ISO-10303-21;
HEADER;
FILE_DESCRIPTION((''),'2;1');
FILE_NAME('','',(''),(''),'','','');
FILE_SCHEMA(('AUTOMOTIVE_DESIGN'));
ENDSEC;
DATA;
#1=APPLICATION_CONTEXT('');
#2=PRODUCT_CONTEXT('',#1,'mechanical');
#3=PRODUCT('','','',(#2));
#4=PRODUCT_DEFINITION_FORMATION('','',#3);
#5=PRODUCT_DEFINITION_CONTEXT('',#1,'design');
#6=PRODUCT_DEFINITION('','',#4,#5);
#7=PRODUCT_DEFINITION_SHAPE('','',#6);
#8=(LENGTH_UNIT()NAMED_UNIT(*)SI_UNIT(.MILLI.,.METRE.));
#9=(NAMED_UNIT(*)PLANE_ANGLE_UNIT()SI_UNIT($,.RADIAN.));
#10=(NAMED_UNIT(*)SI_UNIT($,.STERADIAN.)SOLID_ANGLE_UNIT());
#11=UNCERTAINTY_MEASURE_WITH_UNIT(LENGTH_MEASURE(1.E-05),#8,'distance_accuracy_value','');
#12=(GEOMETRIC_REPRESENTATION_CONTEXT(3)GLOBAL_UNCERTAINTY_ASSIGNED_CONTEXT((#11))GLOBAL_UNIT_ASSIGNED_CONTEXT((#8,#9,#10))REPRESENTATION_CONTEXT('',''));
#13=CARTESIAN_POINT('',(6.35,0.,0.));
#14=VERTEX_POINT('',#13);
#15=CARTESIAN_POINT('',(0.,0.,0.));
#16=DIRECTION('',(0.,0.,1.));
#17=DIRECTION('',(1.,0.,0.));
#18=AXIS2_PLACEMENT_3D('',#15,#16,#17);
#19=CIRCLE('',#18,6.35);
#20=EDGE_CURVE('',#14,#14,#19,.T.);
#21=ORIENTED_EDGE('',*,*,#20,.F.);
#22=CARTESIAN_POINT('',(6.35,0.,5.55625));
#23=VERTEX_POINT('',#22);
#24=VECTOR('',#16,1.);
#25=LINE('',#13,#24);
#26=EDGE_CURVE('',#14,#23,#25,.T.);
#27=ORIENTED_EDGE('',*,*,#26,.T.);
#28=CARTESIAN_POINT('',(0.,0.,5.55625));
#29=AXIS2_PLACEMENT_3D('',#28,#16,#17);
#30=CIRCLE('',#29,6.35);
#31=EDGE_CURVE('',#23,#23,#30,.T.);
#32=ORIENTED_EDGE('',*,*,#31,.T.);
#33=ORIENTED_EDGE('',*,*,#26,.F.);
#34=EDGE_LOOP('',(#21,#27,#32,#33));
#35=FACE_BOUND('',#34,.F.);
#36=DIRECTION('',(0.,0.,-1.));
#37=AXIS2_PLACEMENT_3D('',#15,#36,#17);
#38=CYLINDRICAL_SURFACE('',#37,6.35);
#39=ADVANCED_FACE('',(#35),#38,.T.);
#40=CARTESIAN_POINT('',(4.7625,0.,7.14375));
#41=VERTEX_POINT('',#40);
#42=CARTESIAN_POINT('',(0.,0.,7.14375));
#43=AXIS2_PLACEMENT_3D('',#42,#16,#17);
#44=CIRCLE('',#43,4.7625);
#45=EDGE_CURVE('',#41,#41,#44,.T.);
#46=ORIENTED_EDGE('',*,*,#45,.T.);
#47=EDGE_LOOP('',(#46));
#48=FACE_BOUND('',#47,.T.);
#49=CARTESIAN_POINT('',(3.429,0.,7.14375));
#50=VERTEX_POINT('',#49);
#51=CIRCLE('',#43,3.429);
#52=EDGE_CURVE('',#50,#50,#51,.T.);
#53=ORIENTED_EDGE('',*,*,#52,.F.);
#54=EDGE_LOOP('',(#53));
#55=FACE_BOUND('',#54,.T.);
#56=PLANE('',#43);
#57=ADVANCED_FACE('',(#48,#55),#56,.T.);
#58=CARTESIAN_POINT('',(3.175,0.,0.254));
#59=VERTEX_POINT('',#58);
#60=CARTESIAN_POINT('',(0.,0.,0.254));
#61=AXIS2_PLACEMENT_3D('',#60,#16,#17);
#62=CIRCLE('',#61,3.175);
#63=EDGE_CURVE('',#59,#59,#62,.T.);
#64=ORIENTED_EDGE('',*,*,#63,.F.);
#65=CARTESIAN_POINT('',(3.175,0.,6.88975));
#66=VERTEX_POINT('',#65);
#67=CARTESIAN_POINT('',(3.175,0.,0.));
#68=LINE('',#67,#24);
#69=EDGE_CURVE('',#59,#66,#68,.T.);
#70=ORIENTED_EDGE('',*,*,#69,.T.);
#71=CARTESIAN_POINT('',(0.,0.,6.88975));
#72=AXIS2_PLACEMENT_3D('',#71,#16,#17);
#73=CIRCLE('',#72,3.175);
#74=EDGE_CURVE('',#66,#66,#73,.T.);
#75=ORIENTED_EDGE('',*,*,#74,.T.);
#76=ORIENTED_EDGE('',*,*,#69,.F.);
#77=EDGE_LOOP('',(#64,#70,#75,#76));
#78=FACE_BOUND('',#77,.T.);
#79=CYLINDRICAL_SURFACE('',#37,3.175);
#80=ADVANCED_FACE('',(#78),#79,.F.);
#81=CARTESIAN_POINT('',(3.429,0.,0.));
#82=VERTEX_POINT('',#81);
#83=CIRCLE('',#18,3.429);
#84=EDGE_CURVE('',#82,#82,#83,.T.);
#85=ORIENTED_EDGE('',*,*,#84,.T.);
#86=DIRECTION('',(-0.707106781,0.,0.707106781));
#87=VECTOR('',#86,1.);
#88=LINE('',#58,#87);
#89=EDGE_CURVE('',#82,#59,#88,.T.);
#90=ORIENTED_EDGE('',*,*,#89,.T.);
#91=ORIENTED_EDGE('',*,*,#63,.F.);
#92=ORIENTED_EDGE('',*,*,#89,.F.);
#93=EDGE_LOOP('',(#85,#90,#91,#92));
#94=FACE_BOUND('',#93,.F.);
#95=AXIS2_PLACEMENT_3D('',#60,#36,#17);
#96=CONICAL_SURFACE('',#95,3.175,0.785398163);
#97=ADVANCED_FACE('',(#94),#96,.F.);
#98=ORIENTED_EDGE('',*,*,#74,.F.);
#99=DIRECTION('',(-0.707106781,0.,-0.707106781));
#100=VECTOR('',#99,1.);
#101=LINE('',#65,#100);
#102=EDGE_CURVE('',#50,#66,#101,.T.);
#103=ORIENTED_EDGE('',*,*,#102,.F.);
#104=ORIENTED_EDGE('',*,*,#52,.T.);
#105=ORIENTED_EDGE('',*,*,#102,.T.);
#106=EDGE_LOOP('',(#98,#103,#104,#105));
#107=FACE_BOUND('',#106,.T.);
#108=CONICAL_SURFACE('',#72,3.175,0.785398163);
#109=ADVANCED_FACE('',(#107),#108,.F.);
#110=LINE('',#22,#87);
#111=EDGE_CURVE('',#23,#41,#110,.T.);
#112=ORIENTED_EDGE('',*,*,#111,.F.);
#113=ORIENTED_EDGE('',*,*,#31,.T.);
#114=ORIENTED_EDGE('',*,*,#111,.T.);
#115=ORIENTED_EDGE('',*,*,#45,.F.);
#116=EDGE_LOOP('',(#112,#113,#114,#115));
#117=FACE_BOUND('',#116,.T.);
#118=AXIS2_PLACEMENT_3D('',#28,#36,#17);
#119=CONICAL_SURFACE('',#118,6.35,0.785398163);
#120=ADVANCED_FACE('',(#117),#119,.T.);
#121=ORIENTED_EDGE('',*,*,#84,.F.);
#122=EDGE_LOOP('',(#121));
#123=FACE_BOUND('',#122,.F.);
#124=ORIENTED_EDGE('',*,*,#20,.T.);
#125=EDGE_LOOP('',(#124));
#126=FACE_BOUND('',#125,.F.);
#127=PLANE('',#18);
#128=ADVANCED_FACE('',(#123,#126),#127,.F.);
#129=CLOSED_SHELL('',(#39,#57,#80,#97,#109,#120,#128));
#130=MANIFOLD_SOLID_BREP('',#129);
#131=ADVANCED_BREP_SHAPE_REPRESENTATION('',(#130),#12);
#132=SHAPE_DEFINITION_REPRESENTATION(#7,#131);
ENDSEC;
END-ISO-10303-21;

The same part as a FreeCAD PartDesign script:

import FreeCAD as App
import Part
import Sketcher
Q = App.Units.Quantity


def edges_at(feature, points):
    """Names of the edges that pass closest to the given points."""
    edges = feature.Shape.Edges
    near = lambda p: min(range(len(edges)), key=lambda i: edges[i].distToShape(Part.Vertex(*p))[0])
    return sorted({f"Edge{near(p) + 1}" for p in points})

doc = App.newDocument("Part")
params = doc.addObject("Spreadsheet::Sheet", "Params")
for row, (alias, value) in enumerate([
    ("sketch1_diameter", "0.5 in"),
    ("sketch1_diameter2", "0.25 in"),
    ("pad1_length", "0.28125 in"),
    ("chamfer_size", "0.0625 in"),
    ("chamfer2_size", "0.01 in"),
], start=1):
    params.set(f"A{row}", alias)
    params.set(f"B{row}", "=" + value)
    params.setAlias(f"B{row}", alias)

body = doc.addObject("PartDesign::Body", "Body")

# Sketch on XY plane
sketch1 = doc.addObject("Sketcher::SketchObject", "Sketch")
body.addObject(sketch1)
sketch1.AttachmentSupport = (doc.XY_Plane, [""])
sketch1.MapMode = "FlatFace"
sketch1.addGeometry([
    Part.Circle(App.Vector(0, 0, 0), App.Vector(0, 0, 1), 6.35),
    Part.Circle(App.Vector(0, 0, 0), App.Vector(0, 0, 1), 3.175),
], False)
sketch1.addConstraint([
    Sketcher.Constraint("Coincident", 0, 3, -1, 1),
    Sketcher.Constraint("Coincident", 1, 3, -1, 1),
    Sketcher.Constraint("Diameter", 0, Q("0.5 in")),
    Sketcher.Constraint("Diameter", 1, Q("0.25 in")),
])
sketch1.setExpression("Constraints[2]", "Params.sketch1_diameter")
sketch1.setExpression("Constraints[3]", "Params.sketch1_diameter2")
pad1 = doc.addObject("PartDesign::Pad", "Pad")
body.addObject(pad1)
pad1.Profile = sketch1
pad1.setExpression("Length", "Params.pad1_length")
doc.recompute()

chamfer = doc.addObject("PartDesign::Chamfer", "Chamfer")
body.addObject(chamfer)
chamfer.Base = (pad1, edges_at(pad1, [(-6.35, 0, 7.144)]))
chamfer.setExpression("Size", "Params.chamfer_size")
doc.recompute()

chamfer2 = doc.addObject("PartDesign::Chamfer", "Chamfer001")
body.addObject(chamfer2)
chamfer2.Base = (chamfer, edges_at(chamfer, [(-3.175, 0, 7.144), (-3.175, 0, 0)]))
chamfer2.setExpression("Size", "Params.chamfer2_size")

doc.recompute()
